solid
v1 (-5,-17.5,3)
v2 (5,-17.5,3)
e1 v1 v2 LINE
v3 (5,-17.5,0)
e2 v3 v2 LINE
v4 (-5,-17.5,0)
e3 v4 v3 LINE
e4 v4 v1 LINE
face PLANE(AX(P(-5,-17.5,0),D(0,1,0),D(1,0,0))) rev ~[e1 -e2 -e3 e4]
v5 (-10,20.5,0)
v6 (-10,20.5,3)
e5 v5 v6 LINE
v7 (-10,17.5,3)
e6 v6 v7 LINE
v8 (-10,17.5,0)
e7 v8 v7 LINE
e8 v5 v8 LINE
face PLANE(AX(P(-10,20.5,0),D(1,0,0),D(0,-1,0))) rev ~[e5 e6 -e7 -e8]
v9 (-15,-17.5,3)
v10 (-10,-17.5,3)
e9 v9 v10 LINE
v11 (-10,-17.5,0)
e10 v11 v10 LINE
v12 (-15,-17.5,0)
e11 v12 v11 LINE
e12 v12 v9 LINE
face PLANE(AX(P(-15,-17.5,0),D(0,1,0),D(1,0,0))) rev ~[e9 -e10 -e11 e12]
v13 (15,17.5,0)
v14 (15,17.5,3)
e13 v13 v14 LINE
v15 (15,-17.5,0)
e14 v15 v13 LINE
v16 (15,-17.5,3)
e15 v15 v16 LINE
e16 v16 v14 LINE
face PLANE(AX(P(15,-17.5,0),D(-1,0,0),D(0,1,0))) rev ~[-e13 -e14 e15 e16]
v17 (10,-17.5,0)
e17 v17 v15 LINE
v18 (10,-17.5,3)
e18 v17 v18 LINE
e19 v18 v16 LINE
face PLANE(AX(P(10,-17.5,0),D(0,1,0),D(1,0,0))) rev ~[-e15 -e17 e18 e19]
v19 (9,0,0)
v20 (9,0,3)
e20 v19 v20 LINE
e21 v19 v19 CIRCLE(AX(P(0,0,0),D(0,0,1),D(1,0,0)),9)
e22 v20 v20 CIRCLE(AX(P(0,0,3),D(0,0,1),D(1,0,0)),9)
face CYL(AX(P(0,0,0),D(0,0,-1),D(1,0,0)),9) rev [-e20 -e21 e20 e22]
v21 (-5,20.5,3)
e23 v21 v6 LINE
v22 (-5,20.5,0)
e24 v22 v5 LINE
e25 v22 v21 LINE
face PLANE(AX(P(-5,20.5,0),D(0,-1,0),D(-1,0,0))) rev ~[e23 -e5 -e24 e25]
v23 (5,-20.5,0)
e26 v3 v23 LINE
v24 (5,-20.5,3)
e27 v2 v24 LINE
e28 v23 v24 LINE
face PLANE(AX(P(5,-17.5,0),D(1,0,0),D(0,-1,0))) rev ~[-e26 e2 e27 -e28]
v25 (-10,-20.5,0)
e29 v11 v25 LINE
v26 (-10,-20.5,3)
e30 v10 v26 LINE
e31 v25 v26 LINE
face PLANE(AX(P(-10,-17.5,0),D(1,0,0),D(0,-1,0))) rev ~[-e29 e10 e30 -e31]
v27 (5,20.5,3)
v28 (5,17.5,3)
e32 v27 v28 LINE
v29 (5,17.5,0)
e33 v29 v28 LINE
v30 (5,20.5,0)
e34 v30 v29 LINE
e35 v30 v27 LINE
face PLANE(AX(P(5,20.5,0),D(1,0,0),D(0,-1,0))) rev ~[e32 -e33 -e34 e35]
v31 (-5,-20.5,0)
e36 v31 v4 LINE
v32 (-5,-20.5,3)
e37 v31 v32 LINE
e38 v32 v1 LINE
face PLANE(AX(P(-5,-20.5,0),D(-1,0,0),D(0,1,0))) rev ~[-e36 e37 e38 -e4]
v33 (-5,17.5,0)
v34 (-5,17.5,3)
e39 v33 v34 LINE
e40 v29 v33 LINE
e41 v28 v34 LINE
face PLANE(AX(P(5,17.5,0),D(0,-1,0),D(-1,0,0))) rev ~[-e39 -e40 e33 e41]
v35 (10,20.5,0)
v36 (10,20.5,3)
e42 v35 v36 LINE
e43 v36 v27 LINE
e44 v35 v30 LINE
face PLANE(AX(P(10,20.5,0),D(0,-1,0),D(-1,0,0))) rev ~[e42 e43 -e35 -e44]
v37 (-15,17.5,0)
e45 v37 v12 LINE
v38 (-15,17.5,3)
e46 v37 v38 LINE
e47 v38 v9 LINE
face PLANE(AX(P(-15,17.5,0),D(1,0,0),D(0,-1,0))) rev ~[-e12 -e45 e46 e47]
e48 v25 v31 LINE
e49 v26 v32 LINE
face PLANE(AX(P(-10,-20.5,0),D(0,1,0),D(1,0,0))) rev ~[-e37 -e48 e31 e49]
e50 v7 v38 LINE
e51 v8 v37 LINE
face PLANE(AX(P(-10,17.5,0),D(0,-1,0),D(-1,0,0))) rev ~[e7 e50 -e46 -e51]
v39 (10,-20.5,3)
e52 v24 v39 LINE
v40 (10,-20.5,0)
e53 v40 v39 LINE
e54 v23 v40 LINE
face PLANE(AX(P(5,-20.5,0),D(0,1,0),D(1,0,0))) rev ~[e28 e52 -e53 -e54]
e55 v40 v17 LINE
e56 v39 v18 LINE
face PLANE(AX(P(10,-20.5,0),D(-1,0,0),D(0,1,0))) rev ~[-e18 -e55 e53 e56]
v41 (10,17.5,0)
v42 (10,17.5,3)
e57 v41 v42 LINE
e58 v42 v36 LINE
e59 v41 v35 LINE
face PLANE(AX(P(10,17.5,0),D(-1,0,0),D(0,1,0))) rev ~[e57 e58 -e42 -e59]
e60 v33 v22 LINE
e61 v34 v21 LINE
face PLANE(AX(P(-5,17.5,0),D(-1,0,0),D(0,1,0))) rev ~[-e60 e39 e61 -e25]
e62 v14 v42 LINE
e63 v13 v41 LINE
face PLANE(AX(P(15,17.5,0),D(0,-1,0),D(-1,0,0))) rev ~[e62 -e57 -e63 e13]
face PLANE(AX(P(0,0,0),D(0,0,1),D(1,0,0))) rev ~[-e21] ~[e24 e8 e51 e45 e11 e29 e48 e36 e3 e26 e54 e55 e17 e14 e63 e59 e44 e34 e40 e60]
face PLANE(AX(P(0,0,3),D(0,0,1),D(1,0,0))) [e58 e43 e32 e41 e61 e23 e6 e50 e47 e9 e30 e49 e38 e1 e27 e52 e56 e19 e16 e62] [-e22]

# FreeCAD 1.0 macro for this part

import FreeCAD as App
import Part
import Sketcher
Q = App.Units.Quantity

doc = App.newDocument("Part")
body = doc.addObject("PartDesign::Body", "Body")

# Sketch on XY plane
sketch1 = doc.addObject("Sketcher::SketchObject", "Sketch")
body.addObject(sketch1)
sketch1.AttachmentSupport = (doc.XY_Plane, [""])
sketch1.MapMode = "FlatFace"
sketch1.addGeometry(Part.LineSegment(App.Vector(10, -17.5, 0), App.Vector(15, -17.5, 0)), False)
sketch1.addGeometry(Part.LineSegment(App.Vector(15, -17.5, 0), App.Vector(15, 17.5, 0)), False)
sketch1.addGeometry(Part.LineSegment(App.Vector(15, 17.5, 0), App.Vector(10, 17.5, 0)), False)
sketch1.addGeometry(Part.LineSegment(App.Vector(10, 17.5, 0), App.Vector(10, 20.5, 0)), False)
sketch1.addGeometry(Part.LineSegment(App.Vector(10, 20.5, 0), App.Vector(5, 20.5, 0)), False)
sketch1.addGeometry(Part.LineSegment(App.Vector(5, 20.5, 0), App.Vector(5, 17.5, 0)), False)
sketch1.addGeometry(Part.LineSegment(App.Vector(5, 17.5, 0), App.Vector(-5, 17.5, 0)), False)
sketch1.addGeometry(Part.LineSegment(App.Vector(-5, 17.5, 0), App.Vector(-5, 20.5, 0)), False)
sketch1.addGeometry(Part.LineSegment(App.Vector(-5, 20.5, 0), App.Vector(-10, 20.5, 0)), False)
sketch1.addGeometry(Part.LineSegment(App.Vector(-10, 20.5, 0), App.Vector(-10, 17.5, 0)), False)
sketch1.addGeometry(Part.LineSegment(App.Vector(-10, 17.5, 0), App.Vector(-15, 17.5, 0)), False)
sketch1.addGeometry(Part.LineSegment(App.Vector(-15, 17.5, 0), App.Vector(-15, -17.5, 0)), False)
sketch1.addGeometry(Part.LineSegment(App.Vector(-15, -17.5, 0), App.Vector(-10, -17.5, 0)), False)
sketch1.addGeometry(Part.LineSegment(App.Vector(-10, -17.5, 0), App.Vector(-10, -20.5, 0)), False)
sketch1.addGeometry(Part.LineSegment(App.Vector(-10, -20.5, 0), App.Vector(-5, -20.5, 0)), False)
sketch1.addGeometry(Part.LineSegment(App.Vector(-5, -20.5, 0), App.Vector(-5, -17.5, 0)), False)
sketch1.addGeometry(Part.LineSegment(App.Vector(-5, -17.5, 0), App.Vector(5, -17.5, 0)), False)
sketch1.addGeometry(Part.LineSegment(App.Vector(5, -17.5, 0), App.Vector(5, -20.5, 0)), False)
sketch1.addGeometry(Part.LineSegment(App.Vector(5, -20.5, 0), App.Vector(10, -20.5, 0)), False)
sketch1.addGeometry(Part.LineSegment(App.Vector(10, -20.5, 0), App.Vector(10, -17.5, 0)), False)
sketch1.addGeometry(Part.Circle(App.Vector(0, 0, 0), App.Vector(0, 0, 1), 9), False)
sketch1.addConstraint(Sketcher.Constraint("Coincident", 0, 2, 1, 1))
sketch1.addConstraint(Sketcher.Constraint("Coincident", 1, 2, 2, 1))
sketch1.addConstraint(Sketcher.Constraint("Coincident", 2, 2, 3, 1))
sketch1.addConstraint(Sketcher.Constraint("Coincident", 3, 2, 4, 1))
sketch1.addConstraint(Sketcher.Constraint("Coincident", 4, 2, 5, 1))
sketch1.addConstraint(Sketcher.Constraint("Coincident", 5, 2, 6, 1))
sketch1.addConstraint(Sketcher.Constraint("Coincident", 6, 2, 7, 1))
sketch1.addConstraint(Sketcher.Constraint("Coincident", 7, 2, 8, 1))
sketch1.addConstraint(Sketcher.Constraint("Coincident", 8, 2, 9, 1))
sketch1.addConstraint(Sketcher.Constraint("Coincident", 9, 2, 10, 1))
sketch1.addConstraint(Sketcher.Constraint("Coincident", 10, 2, 11, 1))
sketch1.addConstraint(Sketcher.Constraint("Coincident", 11, 2, 12, 1))
sketch1.addConstraint(Sketcher.Constraint("Coincident", 12, 2, 13, 1))
sketch1.addConstraint(Sketcher.Constraint("Coincident", 13, 2, 14, 1))
sketch1.addConstraint(Sketcher.Constraint("Coincident", 14, 2, 15, 1))
sketch1.addConstraint(Sketcher.Constraint("Coincident", 15, 2, 16, 1))
sketch1.addConstraint(Sketcher.Constraint("Coincident", 16, 2, 17, 1))
sketch1.addConstraint(Sketcher.Constraint("Coincident", 17, 2, 18, 1))
sketch1.addConstraint(Sketcher.Constraint("Coincident", 18, 2, 19, 1))
sketch1.addConstraint(Sketcher.Constraint("Coincident", 19, 2, 0, 1))
sketch1.addConstraint(Sketcher.Constraint("Horizontal", 0))
sketch1.addConstraint(Sketcher.Constraint("Vertical", 1))
sketch1.addConstraint(Sketcher.Constraint("Horizontal", 2))
sketch1.addConstraint(Sketcher.Constraint("Vertical", 3))
sketch1.addConstraint(Sketcher.Constraint("Horizontal", 4))
sketch1.addConstraint(Sketcher.Constraint("Vertical", 5))
sketch1.addConstraint(Sketcher.Constraint("Horizontal", 6))
sketch1.addConstraint(Sketcher.Constraint("Vertical", 7))
sketch1.addConstraint(Sketcher.Constraint("Horizontal", 8))
sketch1.addConstraint(Sketcher.Constraint("Vertical", 9))
sketch1.addConstraint(Sketcher.Constraint("Horizontal", 10))
sketch1.addConstraint(Sketcher.Constraint("Vertical", 11))
sketch1.addConstraint(Sketcher.Constraint("Horizontal", 12))
sketch1.addConstraint(Sketcher.Constraint("Vertical", 13))
sketch1.addConstraint(Sketcher.Constraint("Horizontal", 14))
sketch1.addConstraint(Sketcher.Constraint("Vertical", 15))
sketch1.addConstraint(Sketcher.Constraint("Horizontal", 16))
sketch1.addConstraint(Sketcher.Constraint("Vertical", 17))
sketch1.addConstraint(Sketcher.Constraint("Horizontal", 18))
sketch1.addConstraint(Sketcher.Constraint("Vertical", 19))
sketch1.addConstraint(Sketcher.Constraint("Coincident", 20, 3, -1, 1))
sketch1.addConstraint(Sketcher.Constraint("Symmetric", 0, 2, 10, 2, -1, 1))
sketch1.addConstraint(Sketcher.Constraint("Symmetric", 2, 2, 12, 2, -1, 1))
sketch1.addConstraint(Sketcher.Constraint("Symmetric", 4, 2, 14, 2, -1, 1))
sketch1.addConstraint(Sketcher.Constraint("Symmetric", 6, 2, 16, 2, -1, 1))
sketch1.addConstraint(Sketcher.Constraint("Symmetric", 8, 2, 18, 2, -1, 1))
sketch1.addConstraint(Sketcher.Constraint("Symmetric", 4, 2, 7, 2, -2))
sketch1.addConstraint(Sketcher.Constraint("Symmetric", 2, 2, 9, 2, -2))
sketch1.addConstraint(Sketcher.Constraint("Horizontal", 2, 2, 5, 2))
sketch1.addConstraint(Sketcher.Constraint("Equal", 2, 4))
sketch1.addConstraint(Sketcher.Constraint("Diameter", 20, Q("18 mm")))
sketch1.addConstraint(Sketcher.Constraint("DistanceX", 0, 1, 0, 2, Q("5 mm")))
sketch1.addConstraint(Sketcher.Constraint("DistanceX", 6, 2, 6, 1, Q("10 mm")))
sketch1.addConstraint(Sketcher.Constraint("DistanceY", 1, 1, 1, 2, Q("35 mm")))
sketch1.addConstraint(Sketcher.Constraint("DistanceY", 3, 1, 3, 2, Q("3 mm")))
pad1 = doc.addObject("PartDesign::Pad", "Pad")
body.addObject(pad1)
pad1.Profile = sketch1
pad1.Length = 3

doc.recompute()
